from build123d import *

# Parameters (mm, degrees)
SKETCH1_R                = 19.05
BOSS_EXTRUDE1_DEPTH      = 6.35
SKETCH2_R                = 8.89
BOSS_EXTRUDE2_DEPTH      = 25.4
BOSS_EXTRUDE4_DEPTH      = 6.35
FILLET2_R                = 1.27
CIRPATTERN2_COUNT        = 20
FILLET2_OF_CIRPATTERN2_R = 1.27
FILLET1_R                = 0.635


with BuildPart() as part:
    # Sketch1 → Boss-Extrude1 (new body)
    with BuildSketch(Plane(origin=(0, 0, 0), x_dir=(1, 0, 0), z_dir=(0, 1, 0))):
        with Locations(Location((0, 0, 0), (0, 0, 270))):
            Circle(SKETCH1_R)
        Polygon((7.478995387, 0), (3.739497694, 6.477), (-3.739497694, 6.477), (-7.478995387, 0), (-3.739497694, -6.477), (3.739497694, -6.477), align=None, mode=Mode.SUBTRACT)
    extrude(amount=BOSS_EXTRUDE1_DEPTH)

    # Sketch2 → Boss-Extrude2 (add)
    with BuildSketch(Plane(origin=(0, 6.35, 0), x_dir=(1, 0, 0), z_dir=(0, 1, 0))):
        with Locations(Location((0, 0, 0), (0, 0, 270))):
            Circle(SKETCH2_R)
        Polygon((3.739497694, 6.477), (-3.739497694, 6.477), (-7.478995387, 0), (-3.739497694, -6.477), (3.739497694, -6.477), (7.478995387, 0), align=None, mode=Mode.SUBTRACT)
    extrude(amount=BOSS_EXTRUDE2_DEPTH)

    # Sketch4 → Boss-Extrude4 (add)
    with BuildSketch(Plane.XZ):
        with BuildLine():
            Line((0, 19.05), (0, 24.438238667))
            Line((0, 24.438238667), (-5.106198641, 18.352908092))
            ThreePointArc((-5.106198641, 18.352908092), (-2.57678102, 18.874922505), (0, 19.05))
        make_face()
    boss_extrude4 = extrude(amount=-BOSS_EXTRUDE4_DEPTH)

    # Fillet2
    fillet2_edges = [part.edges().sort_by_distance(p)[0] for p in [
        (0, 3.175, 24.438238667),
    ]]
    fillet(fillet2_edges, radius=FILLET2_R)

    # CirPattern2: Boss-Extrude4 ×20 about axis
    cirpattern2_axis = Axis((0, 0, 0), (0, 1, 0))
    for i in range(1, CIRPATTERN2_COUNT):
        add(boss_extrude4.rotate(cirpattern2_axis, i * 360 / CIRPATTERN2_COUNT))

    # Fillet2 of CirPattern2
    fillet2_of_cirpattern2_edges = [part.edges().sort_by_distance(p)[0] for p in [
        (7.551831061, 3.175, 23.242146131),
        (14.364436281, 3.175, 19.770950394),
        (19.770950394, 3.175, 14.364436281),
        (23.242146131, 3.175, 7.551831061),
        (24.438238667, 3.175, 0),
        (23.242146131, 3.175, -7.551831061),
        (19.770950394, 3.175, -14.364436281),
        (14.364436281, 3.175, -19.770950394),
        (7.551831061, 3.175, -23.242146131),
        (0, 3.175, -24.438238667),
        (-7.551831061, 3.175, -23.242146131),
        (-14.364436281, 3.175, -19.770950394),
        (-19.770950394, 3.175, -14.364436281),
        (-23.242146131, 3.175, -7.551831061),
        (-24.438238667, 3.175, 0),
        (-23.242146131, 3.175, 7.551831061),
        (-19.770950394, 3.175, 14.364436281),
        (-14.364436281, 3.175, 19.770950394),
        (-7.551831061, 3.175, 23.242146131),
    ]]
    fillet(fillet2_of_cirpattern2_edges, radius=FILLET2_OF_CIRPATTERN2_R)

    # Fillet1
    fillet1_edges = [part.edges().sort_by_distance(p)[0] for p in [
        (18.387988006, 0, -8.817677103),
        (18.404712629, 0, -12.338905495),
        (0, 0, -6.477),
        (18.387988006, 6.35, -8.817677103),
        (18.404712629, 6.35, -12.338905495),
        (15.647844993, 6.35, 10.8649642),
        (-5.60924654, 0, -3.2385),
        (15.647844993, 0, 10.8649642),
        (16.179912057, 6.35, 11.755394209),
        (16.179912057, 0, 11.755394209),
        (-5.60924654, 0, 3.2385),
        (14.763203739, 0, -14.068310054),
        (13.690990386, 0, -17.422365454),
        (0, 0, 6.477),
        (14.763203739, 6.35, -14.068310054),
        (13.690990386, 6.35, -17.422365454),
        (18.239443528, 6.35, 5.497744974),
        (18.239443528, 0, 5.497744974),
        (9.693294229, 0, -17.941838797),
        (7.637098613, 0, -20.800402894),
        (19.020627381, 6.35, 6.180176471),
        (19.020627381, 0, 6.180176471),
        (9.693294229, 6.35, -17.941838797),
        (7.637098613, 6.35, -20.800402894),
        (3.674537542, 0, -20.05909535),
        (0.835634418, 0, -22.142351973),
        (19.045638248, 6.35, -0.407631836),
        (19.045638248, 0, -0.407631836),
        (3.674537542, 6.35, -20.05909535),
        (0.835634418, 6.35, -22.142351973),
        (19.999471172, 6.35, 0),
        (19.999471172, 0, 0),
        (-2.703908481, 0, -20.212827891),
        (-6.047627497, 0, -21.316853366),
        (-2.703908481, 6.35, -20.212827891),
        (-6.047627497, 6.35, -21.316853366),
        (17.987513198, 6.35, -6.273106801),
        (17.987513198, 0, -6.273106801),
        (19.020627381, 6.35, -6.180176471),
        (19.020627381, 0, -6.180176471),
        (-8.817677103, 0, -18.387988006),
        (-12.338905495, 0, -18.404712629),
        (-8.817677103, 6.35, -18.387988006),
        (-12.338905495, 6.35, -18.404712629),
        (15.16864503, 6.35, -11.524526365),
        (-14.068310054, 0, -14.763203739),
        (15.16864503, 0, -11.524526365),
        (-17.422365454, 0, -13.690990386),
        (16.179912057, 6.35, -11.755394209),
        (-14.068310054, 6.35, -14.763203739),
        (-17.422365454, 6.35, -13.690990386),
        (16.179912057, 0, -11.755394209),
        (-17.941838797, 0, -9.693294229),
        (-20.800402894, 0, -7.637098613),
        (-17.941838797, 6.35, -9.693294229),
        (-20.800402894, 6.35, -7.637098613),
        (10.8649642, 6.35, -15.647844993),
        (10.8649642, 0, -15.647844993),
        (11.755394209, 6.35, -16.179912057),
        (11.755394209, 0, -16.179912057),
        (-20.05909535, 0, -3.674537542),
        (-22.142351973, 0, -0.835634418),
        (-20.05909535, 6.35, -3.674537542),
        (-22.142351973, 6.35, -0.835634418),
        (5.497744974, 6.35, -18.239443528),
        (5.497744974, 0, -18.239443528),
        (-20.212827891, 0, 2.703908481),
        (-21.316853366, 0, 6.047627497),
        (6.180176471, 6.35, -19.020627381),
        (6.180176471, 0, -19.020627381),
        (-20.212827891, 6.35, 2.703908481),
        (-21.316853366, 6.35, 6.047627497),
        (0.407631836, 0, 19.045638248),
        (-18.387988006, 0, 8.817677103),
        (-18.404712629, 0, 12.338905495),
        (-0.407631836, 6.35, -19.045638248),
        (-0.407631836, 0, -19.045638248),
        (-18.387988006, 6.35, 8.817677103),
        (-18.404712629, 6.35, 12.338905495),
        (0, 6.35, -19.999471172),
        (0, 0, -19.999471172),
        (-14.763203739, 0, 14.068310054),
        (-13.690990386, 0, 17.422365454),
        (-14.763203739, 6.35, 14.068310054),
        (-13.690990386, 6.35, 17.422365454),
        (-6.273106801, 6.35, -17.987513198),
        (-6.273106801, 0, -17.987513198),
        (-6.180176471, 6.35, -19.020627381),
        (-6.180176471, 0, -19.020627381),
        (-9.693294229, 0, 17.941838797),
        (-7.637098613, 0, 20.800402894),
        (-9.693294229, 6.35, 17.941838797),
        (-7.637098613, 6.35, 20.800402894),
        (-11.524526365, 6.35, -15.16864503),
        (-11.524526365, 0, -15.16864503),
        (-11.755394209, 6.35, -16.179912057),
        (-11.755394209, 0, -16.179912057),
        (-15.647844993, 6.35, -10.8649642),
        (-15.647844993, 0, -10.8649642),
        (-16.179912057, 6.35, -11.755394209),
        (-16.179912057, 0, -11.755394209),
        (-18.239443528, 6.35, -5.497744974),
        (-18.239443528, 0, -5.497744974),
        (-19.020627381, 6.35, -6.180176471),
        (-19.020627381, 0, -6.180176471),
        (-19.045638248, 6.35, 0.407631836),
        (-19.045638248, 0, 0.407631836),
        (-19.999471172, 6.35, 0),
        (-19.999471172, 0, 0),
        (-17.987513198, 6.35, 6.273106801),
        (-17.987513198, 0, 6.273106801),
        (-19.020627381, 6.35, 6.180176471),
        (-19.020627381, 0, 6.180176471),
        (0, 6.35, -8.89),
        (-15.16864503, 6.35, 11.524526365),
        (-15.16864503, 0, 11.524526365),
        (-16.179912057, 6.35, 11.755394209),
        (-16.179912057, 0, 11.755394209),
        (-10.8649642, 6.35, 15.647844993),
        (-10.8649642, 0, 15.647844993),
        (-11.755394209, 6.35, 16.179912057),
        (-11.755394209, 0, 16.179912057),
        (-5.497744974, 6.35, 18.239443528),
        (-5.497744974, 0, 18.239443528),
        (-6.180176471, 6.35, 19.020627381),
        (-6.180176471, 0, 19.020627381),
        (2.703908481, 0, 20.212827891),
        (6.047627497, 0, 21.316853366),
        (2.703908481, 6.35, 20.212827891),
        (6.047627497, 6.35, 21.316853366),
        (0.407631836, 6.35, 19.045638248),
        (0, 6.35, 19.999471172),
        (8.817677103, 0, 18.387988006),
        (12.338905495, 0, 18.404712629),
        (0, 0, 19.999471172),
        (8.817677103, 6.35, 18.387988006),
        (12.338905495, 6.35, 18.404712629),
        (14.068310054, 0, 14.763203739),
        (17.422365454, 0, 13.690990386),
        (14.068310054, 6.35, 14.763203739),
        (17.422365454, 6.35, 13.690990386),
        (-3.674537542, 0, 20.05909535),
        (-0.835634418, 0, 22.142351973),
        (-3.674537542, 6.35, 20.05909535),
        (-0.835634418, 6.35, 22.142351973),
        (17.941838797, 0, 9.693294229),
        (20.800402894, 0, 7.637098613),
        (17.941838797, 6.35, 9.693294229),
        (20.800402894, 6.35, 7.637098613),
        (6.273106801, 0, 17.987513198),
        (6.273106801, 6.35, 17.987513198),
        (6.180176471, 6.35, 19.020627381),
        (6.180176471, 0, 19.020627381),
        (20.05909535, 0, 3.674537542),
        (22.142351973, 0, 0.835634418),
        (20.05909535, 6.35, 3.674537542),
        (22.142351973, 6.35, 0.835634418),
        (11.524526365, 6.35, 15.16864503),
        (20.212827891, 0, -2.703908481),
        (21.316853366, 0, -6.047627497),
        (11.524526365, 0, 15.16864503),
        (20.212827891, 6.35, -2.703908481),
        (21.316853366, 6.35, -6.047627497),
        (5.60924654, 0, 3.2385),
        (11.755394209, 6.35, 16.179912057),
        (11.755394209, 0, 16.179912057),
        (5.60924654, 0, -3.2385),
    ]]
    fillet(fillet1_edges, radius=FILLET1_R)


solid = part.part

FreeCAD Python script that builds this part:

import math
import FreeCAD as App
import Part
import Sketcher
from FreeCAD import Vector
Q = App.Units.Quantity


def edges_at(feature, points):
    """Names of the edges that pass closest to the given points."""
    edges = feature.Shape.Edges
    near = lambda p: min(range(len(edges)), key=lambda i: edges[i].distToShape(Part.Vertex(*p))[0])
    return sorted({f"Edge{near(p) + 1}" for p in points})


def add_polygon(sketch, points):
    """Adds a closed chain of lines whose ends are joined by coincident constraints."""
    first, n = sketch.GeometryCount, len(points)
    for a, b in zip(points, points[1:] + points[:1]):
        sketch.addGeometry(Part.LineSegment(App.Vector(*a, 0), App.Vector(*b, 0)), False)
    for i in range(n):
        sketch.addConstraint(Sketcher.Constraint("Coincident", first + i, 2, first + (i + 1) % n, 1))

doc = App.newDocument("Part")
body = doc.addObject("PartDesign::Body", "Body")

# Sketch on XZ plane
sketch1 = doc.addObject("Sketcher::SketchObject", "Sketch")
body.addObject(sketch1)
sketch1.AttachmentSupport = (doc.XZ_Plane, [""])
sketch1.MapMode = "FlatFace"
sketch1.addGeometry(Part.Circle(Vector(0, 0, 0), Vector(0, 0, 1), 19.05), False)  # 0
add_polygon(sketch1, [(3.739498, -6.477), (7.478995, 0), (3.739498, 6.477), (-3.739498, 6.477), (-7.478995, 0), (-3.739498, -6.477)])  # lines 1-6
sketch1.addConstraint(Sketcher.Constraint("Horizontal", 3))
sketch1.addConstraint(Sketcher.Constraint("Horizontal", 6))
sketch1.addConstraint(Sketcher.Constraint("Coincident", 0, 3, -1, 1))
sketch1.addConstraint(Sketcher.Constraint("Symmetric", 1, 2, 4, 2, -1, 1))
sketch1.addConstraint(Sketcher.Constraint("Symmetric", 2, 2, 5, 2, -1, 1))
sketch1.addConstraint(Sketcher.Constraint("PointOnObject", 1, 2, -1))
sketch1.addConstraint(Sketcher.Constraint("Parallel", 1, 4))
sketch1.addConstraint(Sketcher.Constraint("Vertical", 3, 2, 5, 2))
sketch1.addConstraint(Sketcher.Constraint("Diameter", 0, Q("1.5 in")))
sketch1.addConstraint(Sketcher.Constraint("Angle", 1, Q("60 deg")))
sketch1.addConstraint(Sketcher.Constraint("DistanceY", 5, 2, 3, 2, Q("0.51 in")))
sketch1.addConstraint(Sketcher.Constraint("DistanceX", 3, 2, 3, 1, Q("7.478995 mm")))
pad1 = doc.addObject("PartDesign::Pad", "Pad")
body.addObject(pad1)
pad1.Profile = sketch1
pad1.Length = Q("0.25 in")
pad1.Reversed = True

# Sketch on XZ plane
sketch2 = doc.addObject("Sketcher::SketchObject", "Sketch001")
body.addObject(sketch2)
sketch2.AttachmentSupport = (doc.XZ_Plane, [""])
sketch2.MapMode = "FlatFace"
sketch2.AttachmentOffset = App.Placement(Vector(0, 0, -0.25 * 25.4), App.Rotation())
sketch2.addGeometry(Part.Circle(Vector(0, 0, 0), Vector(0, 0, 1), 8.89), False)  # 0
add_polygon(sketch2, [(-3.739498, -6.477), (3.739498, -6.477), (7.478995, 0), (3.739498, 6.477), (-3.739498, 6.477), (-7.478995, 0)])  # lines 1-6
sketch2.addConstraint(Sketcher.Constraint("Horizontal", 1))
sketch2.addConstraint(Sketcher.Constraint("Horizontal", 4))
sketch2.addConstraint(Sketcher.Constraint("Coincident", 0, 3, -1, 1))
sketch2.addConstraint(Sketcher.Constraint("Symmetric", 1, 2, 4, 2, -1, 1))
sketch2.addConstraint(Sketcher.Constraint("Symmetric", 2, 2, 5, 2, -1, 1))
sketch2.addConstraint(Sketcher.Constraint("PointOnObject", 2, 2, -1))
sketch2.addConstraint(Sketcher.Constraint("Parallel", 3, 6))
sketch2.addConstraint(Sketcher.Constraint("Vertical", 1, 2, 3, 2))
sketch2.addConstraint(Sketcher.Constraint("Diameter", 0, Q("0.7 in")))
sketch2.addConstraint(Sketcher.Constraint("Angle", 2, Q("60 deg")))
sketch2.addConstraint(Sketcher.Constraint("DistanceY", 1, 2, 3, 2, Q("0.51 in")))
sketch2.addConstraint(Sketcher.Constraint("DistanceX", 1, 1, 1, 2, Q("7.478995 mm")))
pad2 = doc.addObject("PartDesign::Pad", "Pad001")
body.addObject(pad2)
pad2.Profile = sketch2
pad2.Length = Q("1 in")
pad2.Reversed = True

# Sketch on XZ plane
sketch3 = doc.addObject("Sketcher::SketchObject", "Sketch002")
body.addObject(sketch3)
sketch3.AttachmentSupport = (doc.XZ_Plane, [""])
sketch3.MapMode = "FlatFace"
sketch3.addGeometry(Part.LineSegment(Vector(0, 19.05, 0), Vector(0, 24.438239, 0)), False)
sketch3.addGeometry(Part.LineSegment(Vector(0, 24.438239, 0), Vector(-5.106199, 18.352908, 0)), False)
sketch3.addGeometry(Part.ArcOfCircle(Part.Circle(Vector(0, 0, 0), Vector(0, 0, 1), 19.05), math.radians(90), math.radians(105.547783)), False)
sketch3.addConstraint(Sketcher.Constraint("Coincident", 0, 2, 1, 1))
sketch3.addConstraint(Sketcher.Constraint("Coincident", 1, 2, 2, 2))
sketch3.addConstraint(Sketcher.Constraint("Coincident", 2, 1, 0, 1))
sketch3.addConstraint(Sketcher.Constraint("Vertical", 0))
sketch3.addConstraint(Sketcher.Constraint("Coincident", 2, 3, -1, 1))
sketch3.addConstraint(Sketcher.Constraint("PointOnObject", 0, 2, -2))
sketch3.addConstraint(Sketcher.Constraint("Radius", 2, Q("0.75 in")))
sketch3.addConstraint(Sketcher.Constraint("Angle", 1, Q("-130 deg")))
sketch3.addConstraint(Sketcher.Constraint("DistanceY", 0, 1, 0, 2, Q("5.388239 mm")))
pad3 = doc.addObject("PartDesign::Pad", "Pad002")
body.addObject(pad3)
pad3.Profile = sketch3
pad3.Length = Q("0.25 in")
pad3.Reversed = True
doc.recompute()

fillet = doc.addObject("PartDesign::Fillet", "Fillet")
body.addObject(fillet)
fillet.Base = (pad3, edges_at(pad3, [(0, 3.175, 24.438)]))
fillet.Radius = Q("0.05 in")
doc.recompute()

polarpattern = doc.addObject("PartDesign::PolarPattern", "PolarPattern")
body.addObject(polarpattern)
polarpattern.Originals = [pad3]
polarpattern.Axis = (doc.Y_Axis, [""])
polarpattern.Angle = 360
polarpattern.Occurrences = 20
body.Tip = polarpattern
doc.recompute()

fillet2 = doc.addObject("PartDesign::Fillet", "Fillet001")
body.addObject(fillet2)
fillet2.Base = (polarpattern, edges_at(polarpattern, [
    (7.552, 3.175, 23.242),
    (14.364, 3.175, 19.771),
    (19.771, 3.175, 14.364),
    (23.242, 3.175, 7.552),
    (24.438, 3.175, 0),
    (23.242, 3.175, -7.552),
    (19.771, 3.175, -14.364),
    (14.364, 3.175, -19.771),
    (7.552, 3.175, -23.242),
    (0, 3.175, -24.438),
    (-7.552, 3.175, -23.242),
    (-14.364, 3.175, -19.771),
    (-19.771, 3.175, -14.364),
    (-23.242, 3.175, -7.552),
    (-24.438, 3.175, 0),
    (-23.242, 3.175, 7.552),
    (-19.771, 3.175, 14.364),
    (-14.364, 3.175, 19.771),
    (-7.552, 3.175, 23.242),
]))
fillet2.Radius = Q("0.05 in")
doc.recompute()

fillet3 = doc.addObject("PartDesign::Fillet", "Fillet002")
body.addObject(fillet3)
fillet3.Base = (fillet2, edges_at(fillet2, [
    (18.388, 0, -8.818),
    (18.405, 0, -12.339),
    (0, 0, -6.477),
    (18.388, 6.35, -8.818),
    (18.405, 6.35, -12.339),
    (15.648, 6.35, 10.865),
    (-5.609, 0, -3.239),
    (15.648, 0, 10.865),
    (16.18, 6.35, 11.755),
    (16.18, 0, 11.755),
    (-5.609, 0, 3.239),
    (14.763, 0, -14.068),
    (13.691, 0, -17.422),
    (0, 0, 6.477),
    (14.763, 6.35, -14.068),
    (13.691, 6.35, -17.422),
    (18.239, 6.35, 5.498),
    (18.239, 0, 5.498),
    (9.693, 0, -17.942),
    (7.637, 0, -20.8),
    (19.021, 6.35, 6.18),
    (19.021, 0, 6.18),
    (9.693, 6.35, -17.942),
    (7.637, 6.35, -20.8),
    (3.675, 0, -20.059),
    (0.836, 0, -22.142),
    (19.046, 6.35, -0.408),
    (19.046, 0, -0.408),
    (3.675, 6.35, -20.059),
    (0.836, 6.35, -22.142),
    (19.999, 6.35, 0),
    (19.999, 0, 0),
    (-2.704, 0, -20.213),
    (-6.048, 0, -21.317),
    (-2.704, 6.35, -20.213),
    (-6.048, 6.35, -21.317),
    (17.988, 6.35, -6.273),
    (17.988, 0, -6.273),
    (19.021, 6.35, -6.18),
    (19.021, 0, -6.18),
    (-8.818, 0, -18.388),
    (-12.339, 0, -18.405),
    (-8.818, 6.35, -18.388),
    (-12.339, 6.35, -18.405),
    (15.169, 6.35, -11.525),
    (-14.068, 0, -14.763),
    (15.169, 0, -11.525),
    (-17.422, 0, -13.691),
    (16.18, 6.35, -11.755),
    (-14.068, 6.35, -14.763),
    (-17.422, 6.35, -13.691),
    (16.18, 0, -11.755),
    (-17.942, 0, -9.693),
    (-20.8, 0, -7.637),
    (-17.942, 6.35, -9.693),
    (-20.8, 6.35, -7.637),
    (10.865, 6.35, -15.648),
    (10.865, 0, -15.648),
    (11.755, 6.35, -16.18),
    (11.755, 0, -16.18),
    (-20.059, 0, -3.675),
    (-22.142, 0, -0.836),
    (-20.059, 6.35, -3.675),
    (-22.142, 6.35, -0.836),
    (5.498, 6.35, -18.239),
    (5.498, 0, -18.239),
    (-20.213, 0, 2.704),
    (-21.317, 0, 6.048),
    (6.18, 6.35, -19.021),
    (6.18, 0, -19.021),
    (-20.213, 6.35, 2.704),
    (-21.317, 6.35, 6.048),
    (0.408, 0, 19.046),
    (-18.388, 0, 8.818),
    (-18.405, 0, 12.339),
    (-0.408, 6.35, -19.046),
    (-0.408, 0, -19.046),
    (-18.388, 6.35, 8.818),
    (-18.405, 6.35, 12.339),
    (0, 6.35, -19.999),
    (0, 0, -19.999),
    (-14.763, 0, 14.068),
    (-13.691, 0, 17.422),
    (-14.763, 6.35, 14.068),
    (-13.691, 6.35, 17.422),
    (-6.273, 6.35, -17.988),
    (-6.273, 0, -17.988),
    (-6.18, 6.35, -19.021),
    (-6.18, 0, -19.021),
    (-9.693, 0, 17.942),
    (-7.637, 0, 20.8),
    (-9.693, 6.35, 17.942),
    (-7.637, 6.35, 20.8),
    (-11.525, 6.35, -15.169),
    (-11.525, 0, -15.169),
    (-11.755, 6.35, -16.18),
    (-11.755, 0, -16.18),
    (-15.648, 6.35, -10.865),
    (-15.648, 0, -10.865),
    (-16.18, 6.35, -11.755),
    (-16.18, 0, -11.755),
    (-18.239, 6.35, -5.498),
    (-18.239, 0, -5.498),
    (-19.021, 6.35, -6.18),
    (-19.021, 0, -6.18),
    (-19.046, 6.35, 0.408),
    (-19.046, 0, 0.408),
    (-19.999, 6.35, 0),
    (-19.999, 0, 0),
    (-17.988, 6.35, 6.273),
    (-17.988, 0, 6.273),
    (-19.021, 6.35, 6.18),
    (-19.021, 0, 6.18),
    (0, 6.35, -8.89),
    (-15.169, 6.35, 11.525),
    (-15.169, 0, 11.525),
    (-16.18, 6.35, 11.755),
    (-16.18, 0, 11.755),
    (-10.865, 6.35, 15.648),
    (-10.865, 0, 15.648),
    (-11.755, 6.35, 16.18),
    (-11.755, 0, 16.18),
    (-5.498, 6.35, 18.239),
    (-5.498, 0, 18.239),
    (-6.18, 6.35, 19.021),
    (-6.18, 0, 19.021),
    (2.704, 0, 20.213),
    (6.048, 0, 21.317),
    (2.704, 6.35, 20.213),
    (6.048, 6.35, 21.317),
    (0.408, 6.35, 19.046),
    (0, 6.35, 19.999),
    (8.818, 0, 18.388),
    (12.339, 0, 18.405),
    (0, 0, 19.999),
    (8.818, 6.35, 18.388),
    (12.339, 6.35, 18.405),
    (14.068, 0, 14.763),
    (17.422, 0, 13.691),
    (14.068, 6.35, 14.763),
    (17.422, 6.35, 13.691),
    (-3.675, 0, 20.059),
    (-0.836, 0, 22.142),
    (-3.675, 6.35, 20.059),
    (-0.836, 6.35, 22.142),
    (17.942, 0, 9.693),
    (20.8, 0, 7.637),
    (17.942, 6.35, 9.693),
    (20.8, 6.35, 7.637),
    (6.273, 0, 17.988),
    (6.273, 6.35, 17.988),
    (6.18, 6.35, 19.021),
    (6.18, 0, 19.021),
    (20.059, 0, 3.675),
    (22.142, 0, 0.836),
    (20.059, 6.35, 3.675),
    (22.142, 6.35, 0.836),
    (11.525, 6.35, 15.169),
    (20.213, 0, -2.704),
    (21.317, 0, -6.048),
    (11.525, 0, 15.169),
    (20.213, 6.35, -2.704),
    (21.317, 6.35, -6.048),
    (5.609, 0, 3.239),
    (11.755, 6.35, 16.18),
    (11.755, 0, 16.18),
    (5.609, 0, -3.239),
]))
fillet3.Radius = Q("0.025 in")

doc.recompute()
